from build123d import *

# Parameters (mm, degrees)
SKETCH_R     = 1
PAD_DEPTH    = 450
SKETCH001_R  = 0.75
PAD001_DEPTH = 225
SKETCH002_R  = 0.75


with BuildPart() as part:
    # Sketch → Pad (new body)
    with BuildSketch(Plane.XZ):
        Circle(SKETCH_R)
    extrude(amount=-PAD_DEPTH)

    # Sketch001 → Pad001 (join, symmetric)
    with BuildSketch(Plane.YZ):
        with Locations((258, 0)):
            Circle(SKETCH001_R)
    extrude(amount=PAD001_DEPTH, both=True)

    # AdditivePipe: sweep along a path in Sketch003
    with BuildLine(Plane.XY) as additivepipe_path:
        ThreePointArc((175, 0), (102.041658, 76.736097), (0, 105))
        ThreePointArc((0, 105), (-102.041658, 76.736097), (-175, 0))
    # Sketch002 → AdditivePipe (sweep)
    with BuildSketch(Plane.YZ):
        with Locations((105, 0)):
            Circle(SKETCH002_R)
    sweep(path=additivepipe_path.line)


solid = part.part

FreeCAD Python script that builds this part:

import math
import FreeCAD as App
import Part
import Sketcher
from FreeCAD import Vector
Q = App.Units.Quantity

doc = App.newDocument("Part")
body = doc.addObject("PartDesign::Body", "Body")

# Sketch on XZ plane
sketch1 = doc.addObject("Sketcher::SketchObject", "Sketch")
body.addObject(sketch1)
sketch1.AttachmentSupport = (doc.XZ_Plane, [""])
sketch1.MapMode = "FlatFace"
sketch1.addGeometry(Part.Circle(Vector(0, 0, 0), Vector(0, 0, 1), 1), False)
sketch1.addConstraint([
    Sketcher.Constraint("Coincident", 0, 3, -1, 1),
    Sketcher.Constraint("Diameter", 0, Q("2 mm")),
])
pad1 = doc.addObject("PartDesign::Pad", "Pad")
body.addObject(pad1)
pad1.Profile = sketch1
pad1.Length = 450
pad1.Reversed = True

# Sketch on YZ plane
sketch2 = doc.addObject("Sketcher::SketchObject", "Sketch001")
body.addObject(sketch2)
sketch2.AttachmentSupport = (doc.YZ_Plane, [""])
sketch2.MapMode = "FlatFace"
sketch2.addGeometry(Part.Circle(Vector(258, 0, 0), Vector(0, 0, 1), 0.8), False)
sketch2.addConstraint([
    Sketcher.Constraint("PointOnObject", 0, 3, -1),
    Sketcher.Constraint("Diameter", 0, Q("1.5 mm")),
    Sketcher.Constraint("DistanceX", -1, 1, 0, 3, Q("258 mm")),
])
pad2 = doc.addObject("PartDesign::Pad", "Pad001")
body.addObject(pad2)
pad2.Profile = sketch2
pad2.Length = 450
pad2.Midplane = True

# Sketch on YZ plane
sketch3 = doc.addObject("Sketcher::SketchObject", "Sketch002")
body.addObject(sketch3)
sketch3.AttachmentSupport = (doc.YZ_Plane, [""])
sketch3.MapMode = "FlatFace"
sketch3.addGeometry(Part.Circle(Vector(105, 0, 0), Vector(0, 0, 1), 0.8), False)
sketch3.addConstraint([
    Sketcher.Constraint("PointOnObject", 0, 3, -1),
    Sketcher.Constraint("Diameter", 0, Q("1.5 mm")),
    Sketcher.Constraint("DistanceX", -1, 1, 0, 3, Q("105 mm")),
])

# Sketch on XY plane
sketch4 = doc.addObject("Sketcher::SketchObject", "Sketch003")
body.addObject(sketch4)
sketch4.AttachmentSupport = (doc.XY_Plane, [""])
sketch4.MapMode = "FlatFace"
sketch4.addGeometry([
    Part.ArcOfCircle(Part.Circle(Vector(0, -93, 0), Vector(0, 0, 1), 198), math.radians(28), math.radians(90)),
    Part.ArcOfCircle(Part.Circle(Vector(0, -93, 0), Vector(0, 0, 1), 198), math.radians(90), math.radians(152)),
], False)
sketch4.addConstraint([
    Sketcher.Constraint("Tangent", 0, 2, 1, 1),
    Sketcher.Constraint("Equal", 0, 1),
    Sketcher.Constraint("Symmetric", 0, 1, 1, 2, -1, 1),
    Sketcher.Constraint("PointOnObject", 0, 3, -2),
    Sketcher.Constraint("PointOnObject", 0, 2, -2),
    Sketcher.Constraint("DistanceX", -1, 1, 0, 1, Q("175 mm")),
    Sketcher.Constraint("DistanceY", -1, 1, 0, 2, Q("105 mm")),
])
doc.recompute()

additivepipe = doc.addObject("PartDesign::AdditivePipe", "AdditivePipe")
body.addObject(additivepipe)
additivepipe.Profile = sketch3
additivepipe.Spine = (sketch4, ["Edge1", "Edge2"])

doc.recompute()
